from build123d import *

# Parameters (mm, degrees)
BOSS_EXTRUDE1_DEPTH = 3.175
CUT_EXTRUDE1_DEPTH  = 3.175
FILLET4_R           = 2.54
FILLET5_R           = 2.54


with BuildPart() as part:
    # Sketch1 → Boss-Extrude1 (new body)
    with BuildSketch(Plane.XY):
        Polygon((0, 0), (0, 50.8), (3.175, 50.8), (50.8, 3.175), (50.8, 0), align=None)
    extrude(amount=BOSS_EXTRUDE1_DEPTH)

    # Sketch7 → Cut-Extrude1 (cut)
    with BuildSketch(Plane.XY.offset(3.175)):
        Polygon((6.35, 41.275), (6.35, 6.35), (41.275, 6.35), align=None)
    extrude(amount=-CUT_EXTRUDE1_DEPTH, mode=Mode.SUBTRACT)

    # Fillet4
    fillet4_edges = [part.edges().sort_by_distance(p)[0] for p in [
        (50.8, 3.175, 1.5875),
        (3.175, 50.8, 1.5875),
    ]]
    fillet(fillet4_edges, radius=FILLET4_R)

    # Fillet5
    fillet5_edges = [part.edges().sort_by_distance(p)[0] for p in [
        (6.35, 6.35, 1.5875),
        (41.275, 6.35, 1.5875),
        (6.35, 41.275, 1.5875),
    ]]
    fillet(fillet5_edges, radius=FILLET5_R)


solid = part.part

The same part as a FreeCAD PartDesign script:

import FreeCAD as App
import Part
import Sketcher
from FreeCAD import Vector
Q = App.Units.Quantity


def edges_at(feature, points):
    """Names of the edges that pass closest to the given points."""
    edges = feature.Shape.Edges
    near = lambda p: min(range(len(edges)), key=lambda i: edges[i].distToShape(Part.Vertex(*p))[0])
    return sorted({f"Edge{near(p) + 1}" for p in points})


def add_polygon(sketch, points):
    """Adds a closed chain of lines whose ends are joined by coincident constraints."""
    first, n = sketch.GeometryCount, len(points)
    for a, b in zip(points, points[1:] + points[:1]):
        sketch.addGeometry(Part.LineSegment(App.Vector(*a, 0), App.Vector(*b, 0)), False)
    for i in range(n):
        sketch.addConstraint(Sketcher.Constraint("Coincident", first + i, 2, first + (i + 1) % n, 1))

doc = App.newDocument("Part")
body = doc.addObject("PartDesign::Body", "Body")

# Sketch on XY plane
sketch1 = body.newObject("Sketcher::SketchObject", "Sketch")
sketch1.AttachmentSupport = (doc.getObject("XY_Plane"), [""])
sketch1.MapMode = "FlatFace"
add_polygon(sketch1, [(0, 50.8), (0, 0), (50.8, 0), (50.8, 3.175), (3.175, 50.8)])  # lines 0-4
sketch1.addConstraint([
    Sketcher.Constraint("Vertical", 0),
    Sketcher.Constraint("Horizontal", 1),
    Sketcher.Constraint("Vertical", 2),
    Sketcher.Constraint("Horizontal", 4),
    Sketcher.Constraint("Coincident", 0, 2, -1, 1),
    Sketcher.Constraint("Equal", 1, 0),
    Sketcher.Constraint("Equal", 4, 2),
    Sketcher.Constraint("DistanceX", 1, 1, 1, 2, Q("2 in")),
    Sketcher.Constraint("DistanceX", 4, 2, 4, 1, Q("0.125 in")),
])
pad1 = body.newObject("PartDesign::Pad", "Pad")
pad1.Profile = sketch1
pad1.Length = Q("0.125 in")

# Sketch on XY plane
sketch2 = body.newObject("Sketcher::SketchObject", "Sketch001")
sketch2.AttachmentSupport = (doc.getObject("XY_Plane"), [""])
sketch2.MapMode = "FlatFace"
sketch2.AttachmentOffset = App.Placement(Vector(0, 0, 0.125 * 25.4), App.Rotation())
add_polygon(sketch2, [(6.35, 41.275), (6.35, 6.35), (41.275, 6.35)])  # lines 0-2
sketch2.addConstraint([
    Sketcher.Constraint("Vertical", 0),
    Sketcher.Constraint("Horizontal", 1),
    Sketcher.Constraint("Equal", 1, 0),
    Sketcher.Constraint("DistanceX", 1, 1, 1, 2, Q("1.375 in")),
    Sketcher.Constraint("DistanceX", -1, 1, 0, 2, Q("0.25 in")),
    Sketcher.Constraint("DistanceY", -1, 1, 0, 2, Q("0.25 in")),
])
pocket1 = body.newObject("PartDesign::Pocket", "Pocket")
pocket1.Profile = sketch2
pocket1.Length = Q("0.125 in")
doc.recompute()

fillet = body.newObject("PartDesign::Fillet", "Fillet")
fillet.Base = (pocket1, edges_at(pocket1, [(50.8, 3.175, 1.587), (3.175, 50.8, 1.587)]))
fillet.Radius = Q("0.1 in")
doc.recompute()

fillet2 = body.newObject("PartDesign::Fillet", "Fillet001")
fillet2.Base = (fillet, edges_at(fillet, [(6.35, 6.35, 1.587), (41.275, 6.35, 1.587), (6.35, 41.275, 1.587)]))
fillet2.Radius = Q("0.1 in")

doc.recompute()
